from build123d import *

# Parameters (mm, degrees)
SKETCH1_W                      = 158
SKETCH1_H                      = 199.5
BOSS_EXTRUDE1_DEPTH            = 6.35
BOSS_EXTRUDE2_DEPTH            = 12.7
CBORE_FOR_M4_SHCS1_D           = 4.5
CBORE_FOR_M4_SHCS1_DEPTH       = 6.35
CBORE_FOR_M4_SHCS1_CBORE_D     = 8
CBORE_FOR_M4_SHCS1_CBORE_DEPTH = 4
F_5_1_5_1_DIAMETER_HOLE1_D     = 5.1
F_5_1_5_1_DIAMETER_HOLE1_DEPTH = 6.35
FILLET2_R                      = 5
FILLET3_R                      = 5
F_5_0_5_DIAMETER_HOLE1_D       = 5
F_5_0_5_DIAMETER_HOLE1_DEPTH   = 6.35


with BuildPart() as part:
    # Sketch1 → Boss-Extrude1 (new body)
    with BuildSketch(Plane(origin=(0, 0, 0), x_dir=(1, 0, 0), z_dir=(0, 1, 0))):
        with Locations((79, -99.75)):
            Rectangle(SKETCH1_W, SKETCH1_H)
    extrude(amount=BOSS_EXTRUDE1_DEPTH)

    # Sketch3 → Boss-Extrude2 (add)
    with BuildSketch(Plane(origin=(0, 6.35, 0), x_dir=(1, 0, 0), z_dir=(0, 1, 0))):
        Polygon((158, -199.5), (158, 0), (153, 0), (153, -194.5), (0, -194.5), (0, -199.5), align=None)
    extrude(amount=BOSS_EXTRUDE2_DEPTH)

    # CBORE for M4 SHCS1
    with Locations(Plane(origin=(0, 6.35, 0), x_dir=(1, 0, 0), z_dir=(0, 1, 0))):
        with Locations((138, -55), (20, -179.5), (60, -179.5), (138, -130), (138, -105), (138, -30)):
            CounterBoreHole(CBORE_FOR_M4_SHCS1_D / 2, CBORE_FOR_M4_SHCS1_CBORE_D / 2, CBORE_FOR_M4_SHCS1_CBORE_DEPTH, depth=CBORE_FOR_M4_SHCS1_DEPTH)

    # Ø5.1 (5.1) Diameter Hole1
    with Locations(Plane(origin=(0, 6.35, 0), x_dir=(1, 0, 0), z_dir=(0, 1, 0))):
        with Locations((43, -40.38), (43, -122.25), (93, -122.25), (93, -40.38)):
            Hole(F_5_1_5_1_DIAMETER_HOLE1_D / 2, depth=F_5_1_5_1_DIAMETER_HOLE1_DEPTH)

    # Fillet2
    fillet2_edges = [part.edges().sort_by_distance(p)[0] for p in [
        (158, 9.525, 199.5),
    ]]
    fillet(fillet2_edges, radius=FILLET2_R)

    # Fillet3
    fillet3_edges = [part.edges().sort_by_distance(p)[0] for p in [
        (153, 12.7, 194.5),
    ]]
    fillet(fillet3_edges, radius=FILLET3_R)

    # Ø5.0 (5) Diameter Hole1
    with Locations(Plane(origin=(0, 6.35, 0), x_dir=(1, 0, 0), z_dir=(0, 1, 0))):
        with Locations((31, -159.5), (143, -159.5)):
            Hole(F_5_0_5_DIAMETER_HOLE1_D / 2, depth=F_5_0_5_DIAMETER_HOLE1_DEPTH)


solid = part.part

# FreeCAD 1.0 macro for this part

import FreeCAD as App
import Part
import Sketcher
from FreeCAD import Vector


def edges_at(feature, points):
    """Names of the edges that pass closest to the given points."""
    edges = feature.Shape.Edges
    near = lambda p: min(range(len(edges)), key=lambda i: edges[i].distToShape(Part.Vertex(*p))[0])
    return sorted({f"Edge{near(p) + 1}" for p in points})

doc = App.newDocument("Part")
params = doc.addObject("Spreadsheet::Sheet", "Params")
for row, (alias, value) in enumerate([
    ("sketch1_width", "158 mm"),
    ("sketch1_height", "199.5 mm"),
    ("pad1_length", "6.35 mm"),
    ("sketch2_width", "5 mm"),
    ("sketch2_width2", "153 mm"),
    ("sketch2_height", "199.5 mm"),
    ("pad2_length", "12.7 mm"),
    ("sketch3_diameter", "4.5 mm"),
    ("hole_diameter", "4.5 mm"),
    ("hole_depth", "6.35 mm"),
    ("hole_cbore_diameter", "8 mm"),
    ("hole_cbore_depth", "4 mm"),
    ("sketch4_diameter", "5.1 mm"),
    ("hole2_diameter", "5.1 mm"),
    ("hole2_depth", "6.35 mm"),
    ("fillet_radius", "5 mm"),
    ("fillet2_radius", "5 mm"),
    ("sketch5_diameter", "5 mm"),
    ("hole3_diameter", "5 mm"),
    ("hole3_depth", "6.35 mm"),
], start=1):
    params.set(f"A{row}", alias)
    params.set(f"B{row}", "=" + value)
    params.setAlias(f"B{row}", alias)

body = doc.addObject("PartDesign::Body", "Body")

sketch1 = body.newObject("Sketcher::SketchObject", "Sketch")
sketch1.AttachmentSupport = (doc.getObject("XZ_Plane"), [""])
sketch1.MapMode = "FlatFace"
sketch1.addGeometry(Part.LineSegment(Vector(0, 0, 0), Vector(0, 200, 0)), False)
sketch1.addGeometry(Part.LineSegment(Vector(0, 200, 0), Vector(158, 200, 0)), False)
sketch1.addGeometry(Part.LineSegment(Vector(158, 200, 0), Vector(158, 0, 0)), False)
sketch1.addGeometry(Part.LineSegment(Vector(158, 0, 0), Vector(0, 0, 0)), False)
sketch1.addConstraint(Sketcher.Constraint("Coincident", 0, 2, 1, 1))
sketch1.addConstraint(Sketcher.Constraint("Coincident", 1, 2, 2, 1))
sketch1.addConstraint(Sketcher.Constraint("Coincident", 2, 2, 3, 1))
sketch1.addConstraint(Sketcher.Constraint("Coincident", 3, 2, 0, 1))
sketch1.addConstraint(Sketcher.Constraint("Vertical", 0))
sketch1.addConstraint(Sketcher.Constraint("Horizontal", 1))
sketch1.addConstraint(Sketcher.Constraint("Vertical", 2))
sketch1.addConstraint(Sketcher.Constraint("Horizontal", 3))
sketch1.addConstraint(Sketcher.Constraint("Coincident", 3, 2, -1, 1))
sketch1.addConstraint(Sketcher.Constraint("DistanceX", 1, 1, 1, 2, 158.0))
sketch1.addConstraint(Sketcher.Constraint("DistanceY", 0, 1, 0, 2, 199.5))
sketch1.setExpression("Constraints[9]", "Params.sketch1_width")
sketch1.setExpression("Constraints[10]", "Params.sketch1_height")
pad1 = body.newObject("PartDesign::Pad", "Pad")
pad1.Profile = sketch1
pad1.setExpression("Length", "Params.pad1_length")
pad1.Reversed = True

sketch2 = body.newObject("Sketcher::SketchObject", "Sketch001")
sketch2.AttachmentSupport = (doc.getObject("XZ_Plane"), [""])
sketch2.MapMode = "FlatFace"
sketch2.AttachmentOffset = App.Placement(Vector(0, 0, -6.35), App.Rotation())
sketch2.addGeometry(Part.LineSegment(Vector(158, 200, 0), Vector(158, 0, 0)), False)
sketch2.addGeometry(Part.LineSegment(Vector(158, 0, 0), Vector(153, 0, 0)), False)
sketch2.addGeometry(Part.LineSegment(Vector(153, 0, 0), Vector(153, 194, 0)), False)
sketch2.addGeometry(Part.LineSegment(Vector(153, 194, 0), Vector(0, 194, 0)), False)
sketch2.addGeometry(Part.LineSegment(Vector(0, 194, 0), Vector(0, 200, 0)), False)
sketch2.addGeometry(Part.LineSegment(Vector(0, 200, 0), Vector(158, 200, 0)), False)
sketch2.addConstraint(Sketcher.Constraint("Coincident", 0, 2, 1, 1))
sketch2.addConstraint(Sketcher.Constraint("Coincident", 1, 2, 2, 1))
sketch2.addConstraint(Sketcher.Constraint("Coincident", 2, 2, 3, 1))
sketch2.addConstraint(Sketcher.Constraint("Coincident", 3, 2, 4, 1))
sketch2.addConstraint(Sketcher.Constraint("Coincident", 4, 2, 5, 1))
sketch2.addConstraint(Sketcher.Constraint("Coincident", 5, 2, 0, 1))
sketch2.addConstraint(Sketcher.Constraint("Vertical", 0))
sketch2.addConstraint(Sketcher.Constraint("Horizontal", 1))
sketch2.addConstraint(Sketcher.Constraint("Vertical", 2))
sketch2.addConstraint(Sketcher.Constraint("Horizontal", 3))
sketch2.addConstraint(Sketcher.Constraint("Vertical", 4))
sketch2.addConstraint(Sketcher.Constraint("Horizontal", 5))
sketch2.addConstraint(Sketcher.Constraint("PointOnObject", 0, 2, -1))
sketch2.addConstraint(Sketcher.Constraint("PointOnObject", 3, 2, -2))
sketch2.addConstraint(Sketcher.Constraint("Equal", 1, 4))
sketch2.addConstraint(Sketcher.Constraint("DistanceX", 1, 2, 1, 1, 5.0))
sketch2.addConstraint(Sketcher.Constraint("DistanceX", 3, 2, 3, 1, 153.0))
sketch2.addConstraint(Sketcher.Constraint("DistanceY", 0, 2, 0, 1, 199.5))
sketch2.setExpression("Constraints[15]", "Params.sketch2_width")
sketch2.setExpression("Constraints[16]", "Params.sketch2_width2")
sketch2.setExpression("Constraints[17]", "Params.sketch2_height")
pad2 = body.newObject("PartDesign::Pad", "Pad001")
pad2.Profile = sketch2
pad2.setExpression("Length", "Params.pad2_length")
pad2.Reversed = True

sketch3 = body.newObject("Sketcher::SketchObject", "Sketch002")
sketch3.AttachmentSupport = (doc.getObject("XZ_Plane"), [""])
sketch3.MapMode = "FlatFace"
sketch3.AttachmentOffset = App.Placement(Vector(0, 0, -6.35), App.Rotation())
sketch3.addGeometry(Part.Circle(Vector(138, 55, 0), Vector(0, 0, 1), 2.2), False)
sketch3.addGeometry(Part.Circle(Vector(20, 179.5, 0), Vector(0, 0, 1), 2.2), False)
sketch3.addGeometry(Part.Circle(Vector(60, 179.5, 0), Vector(0, 0, 1), 2.2), False)
sketch3.addGeometry(Part.Circle(Vector(138, 130, 0), Vector(0, 0, 1), 2.2), False)
sketch3.addGeometry(Part.Circle(Vector(138, 105, 0), Vector(0, 0, 1), 2.2), False)
sketch3.addGeometry(Part.Circle(Vector(138, 30, 0), Vector(0, 0, 1), 2.2), False)
sketch3.addConstraint(Sketcher.Constraint("Equal", 0, 1))
sketch3.addConstraint(Sketcher.Constraint("Equal", 1, 2))
sketch3.addConstraint(Sketcher.Constraint("Equal", 2, 3))
sketch3.addConstraint(Sketcher.Constraint("Equal", 3, 4))
sketch3.addConstraint(Sketcher.Constraint("Equal", 4, 5))
sketch3.addConstraint(Sketcher.Constraint("Horizontal", 1, 3, 2, 3))
sketch3.addConstraint(Sketcher.Constraint("Vertical", 0, 3, 3, 3))
sketch3.addConstraint(Sketcher.Constraint("Vertical", 3, 3, 4, 3))
sketch3.addConstraint(Sketcher.Constraint("Vertical", 4, 3, 5, 3))
sketch3.addConstraint(Sketcher.Constraint("Diameter", 0, 4.5))
sketch3.addConstraint(Sketcher.Constraint("DistanceX", -1, 1, 0, 3, 138.0))
sketch3.addConstraint(Sketcher.Constraint("DistanceY", -1, 1, 0, 3, 55.0))
sketch3.addConstraint(Sketcher.Constraint("DistanceX", -1, 1, 1, 3, 20.0))
sketch3.addConstraint(Sketcher.Constraint("DistanceX", -1, 1, 2, 3, 60.0))
sketch3.addConstraint(Sketcher.Constraint("DistanceY", -1, 1, 3, 3, 130.0))
sketch3.addConstraint(Sketcher.Constraint("DistanceY", -1, 1, 4, 3, 105.0))
sketch3.addConstraint(Sketcher.Constraint("DistanceY", -1, 1, 5, 3, 30.0))
sketch3.addConstraint(Sketcher.Constraint("DistanceY", -1, 1, 1, 3, 179.5))
sketch3.setExpression("Constraints[9]", "Params.sketch3_diameter")
doc.recompute()
hole = body.newObject("PartDesign::Hole", "Hole")
hole.Profile = sketch3
hole.ThreadType = "None"
hole.setExpression("Diameter", "Params.hole_diameter")
hole.DepthType = "Dimension"
hole.setExpression("Depth", "Params.hole_depth")
hole.DrillPoint = "Flat"
hole.HoleCutType = "Counterbore"
hole.setExpression("HoleCutDiameter", "Params.hole_cbore_diameter")
hole.setExpression("HoleCutDepth", "Params.hole_cbore_depth")
hole.Reversed = True

sketch4 = body.newObject("Sketcher::SketchObject", "Sketch003")
sketch4.AttachmentSupport = (doc.getObject("XZ_Plane"), [""])
sketch4.MapMode = "FlatFace"
sketch4.AttachmentOffset = App.Placement(Vector(0, 0, -6.35), App.Rotation())
sketch4.addGeometry(Part.Circle(Vector(43, 40.4, 0), Vector(0, 0, 1), 2.5), False)
sketch4.addGeometry(Part.Circle(Vector(43, 122.2, 0), Vector(0, 0, 1), 2.5), False)
sketch4.addGeometry(Part.Circle(Vector(93, 122.2, 0), Vector(0, 0, 1), 2.5), False)
sketch4.addGeometry(Part.Circle(Vector(93, 40.4, 0), Vector(0, 0, 1), 2.5), False)
sketch4.addConstraint(Sketcher.Constraint("Equal", 0, 1))
sketch4.addConstraint(Sketcher.Constraint("Equal", 1, 2))
sketch4.addConstraint(Sketcher.Constraint("Equal", 2, 3))
sketch4.addConstraint(Sketcher.Constraint("Horizontal", 1, 3, 2, 3))
sketch4.addConstraint(Sketcher.Constraint("Horizontal", 0, 3, 3, 3))
sketch4.addConstraint(Sketcher.Constraint("Vertical", 0, 3, 1, 3))
sketch4.addConstraint(Sketcher.Constraint("Vertical", 2, 3, 3, 3))
sketch4.addConstraint(Sketcher.Constraint("Diameter", 0, 5.1))
sketch4.addConstraint(Sketcher.Constraint("DistanceX", -1, 1, 0, 3, 43.0))
sketch4.addConstraint(Sketcher.Constraint("DistanceX", -1, 1, 2, 3, 93.0))
sketch4.addConstraint(Sketcher.Constraint("DistanceY", -1, 1, 0, 3, 40.38))
sketch4.addConstraint(Sketcher.Constraint("DistanceY", -1, 1, 1, 3, 122.25))
sketch4.setExpression("Constraints[7]", "Params.sketch4_diameter")
doc.recompute()
hole2 = body.newObject("PartDesign::Hole", "Hole001")
hole2.Profile = sketch4
hole2.ThreadType = "None"
hole2.setExpression("Diameter", "Params.hole2_diameter")
hole2.DepthType = "Dimension"
hole2.setExpression("Depth", "Params.hole2_depth")
hole2.DrillPoint = "Flat"
hole2.Reversed = True
doc.recompute()

fillet = body.newObject("PartDesign::Fillet", "Fillet")
fillet.Base = (hole2, edges_at(hole2, [(158, 9.525, 199.5)]))
fillet.setExpression("Radius", "Params.fillet_radius")
doc.recompute()

fillet2 = body.newObject("PartDesign::Fillet", "Fillet001")
fillet2.Base = (fillet, edges_at(fillet, [(153, 12.7, 194.5)]))
fillet2.setExpression("Radius", "Params.fillet2_radius")

sketch5 = body.newObject("Sketcher::SketchObject", "Sketch004")
sketch5.AttachmentSupport = (doc.getObject("XZ_Plane"), [""])
sketch5.MapMode = "FlatFace"
sketch5.AttachmentOffset = App.Placement(Vector(0, 0, -6.35), App.Rotation())
sketch5.addGeometry(Part.Circle(Vector(31, 159.5, 0), Vector(0, 0, 1), 2.5), False)
sketch5.addGeometry(Part.Circle(Vector(143, 159.5, 0), Vector(0, 0, 1), 2.5), False)
sketch5.addConstraint(Sketcher.Constraint("Equal", 0, 1))
sketch5.addConstraint(Sketcher.Constraint("Horizontal", 0, 3, 1, 3))
sketch5.addConstraint(Sketcher.Constraint("Diameter", 0, 5.0))
sketch5.addConstraint(Sketcher.Constraint("DistanceX", -1, 1, 0, 3, 31.0))
sketch5.addConstraint(Sketcher.Constraint("DistanceX", -1, 1, 1, 3, 143.0))
sketch5.addConstraint(Sketcher.Constraint("DistanceY", -1, 1, 0, 3, 159.5))
sketch5.setExpression("Constraints[2]", "Params.sketch5_diameter")
doc.recompute()
hole3 = body.newObject("PartDesign::Hole", "Hole002")
hole3.Profile = sketch5
hole3.ThreadType = "None"
hole3.setExpression("Diameter", "Params.hole3_diameter")
hole3.DepthType = "Dimension"
hole3.setExpression("Depth", "Params.hole3_depth")
hole3.DrillPoint = "Flat"
hole3.Reversed = True

doc.recompute()
